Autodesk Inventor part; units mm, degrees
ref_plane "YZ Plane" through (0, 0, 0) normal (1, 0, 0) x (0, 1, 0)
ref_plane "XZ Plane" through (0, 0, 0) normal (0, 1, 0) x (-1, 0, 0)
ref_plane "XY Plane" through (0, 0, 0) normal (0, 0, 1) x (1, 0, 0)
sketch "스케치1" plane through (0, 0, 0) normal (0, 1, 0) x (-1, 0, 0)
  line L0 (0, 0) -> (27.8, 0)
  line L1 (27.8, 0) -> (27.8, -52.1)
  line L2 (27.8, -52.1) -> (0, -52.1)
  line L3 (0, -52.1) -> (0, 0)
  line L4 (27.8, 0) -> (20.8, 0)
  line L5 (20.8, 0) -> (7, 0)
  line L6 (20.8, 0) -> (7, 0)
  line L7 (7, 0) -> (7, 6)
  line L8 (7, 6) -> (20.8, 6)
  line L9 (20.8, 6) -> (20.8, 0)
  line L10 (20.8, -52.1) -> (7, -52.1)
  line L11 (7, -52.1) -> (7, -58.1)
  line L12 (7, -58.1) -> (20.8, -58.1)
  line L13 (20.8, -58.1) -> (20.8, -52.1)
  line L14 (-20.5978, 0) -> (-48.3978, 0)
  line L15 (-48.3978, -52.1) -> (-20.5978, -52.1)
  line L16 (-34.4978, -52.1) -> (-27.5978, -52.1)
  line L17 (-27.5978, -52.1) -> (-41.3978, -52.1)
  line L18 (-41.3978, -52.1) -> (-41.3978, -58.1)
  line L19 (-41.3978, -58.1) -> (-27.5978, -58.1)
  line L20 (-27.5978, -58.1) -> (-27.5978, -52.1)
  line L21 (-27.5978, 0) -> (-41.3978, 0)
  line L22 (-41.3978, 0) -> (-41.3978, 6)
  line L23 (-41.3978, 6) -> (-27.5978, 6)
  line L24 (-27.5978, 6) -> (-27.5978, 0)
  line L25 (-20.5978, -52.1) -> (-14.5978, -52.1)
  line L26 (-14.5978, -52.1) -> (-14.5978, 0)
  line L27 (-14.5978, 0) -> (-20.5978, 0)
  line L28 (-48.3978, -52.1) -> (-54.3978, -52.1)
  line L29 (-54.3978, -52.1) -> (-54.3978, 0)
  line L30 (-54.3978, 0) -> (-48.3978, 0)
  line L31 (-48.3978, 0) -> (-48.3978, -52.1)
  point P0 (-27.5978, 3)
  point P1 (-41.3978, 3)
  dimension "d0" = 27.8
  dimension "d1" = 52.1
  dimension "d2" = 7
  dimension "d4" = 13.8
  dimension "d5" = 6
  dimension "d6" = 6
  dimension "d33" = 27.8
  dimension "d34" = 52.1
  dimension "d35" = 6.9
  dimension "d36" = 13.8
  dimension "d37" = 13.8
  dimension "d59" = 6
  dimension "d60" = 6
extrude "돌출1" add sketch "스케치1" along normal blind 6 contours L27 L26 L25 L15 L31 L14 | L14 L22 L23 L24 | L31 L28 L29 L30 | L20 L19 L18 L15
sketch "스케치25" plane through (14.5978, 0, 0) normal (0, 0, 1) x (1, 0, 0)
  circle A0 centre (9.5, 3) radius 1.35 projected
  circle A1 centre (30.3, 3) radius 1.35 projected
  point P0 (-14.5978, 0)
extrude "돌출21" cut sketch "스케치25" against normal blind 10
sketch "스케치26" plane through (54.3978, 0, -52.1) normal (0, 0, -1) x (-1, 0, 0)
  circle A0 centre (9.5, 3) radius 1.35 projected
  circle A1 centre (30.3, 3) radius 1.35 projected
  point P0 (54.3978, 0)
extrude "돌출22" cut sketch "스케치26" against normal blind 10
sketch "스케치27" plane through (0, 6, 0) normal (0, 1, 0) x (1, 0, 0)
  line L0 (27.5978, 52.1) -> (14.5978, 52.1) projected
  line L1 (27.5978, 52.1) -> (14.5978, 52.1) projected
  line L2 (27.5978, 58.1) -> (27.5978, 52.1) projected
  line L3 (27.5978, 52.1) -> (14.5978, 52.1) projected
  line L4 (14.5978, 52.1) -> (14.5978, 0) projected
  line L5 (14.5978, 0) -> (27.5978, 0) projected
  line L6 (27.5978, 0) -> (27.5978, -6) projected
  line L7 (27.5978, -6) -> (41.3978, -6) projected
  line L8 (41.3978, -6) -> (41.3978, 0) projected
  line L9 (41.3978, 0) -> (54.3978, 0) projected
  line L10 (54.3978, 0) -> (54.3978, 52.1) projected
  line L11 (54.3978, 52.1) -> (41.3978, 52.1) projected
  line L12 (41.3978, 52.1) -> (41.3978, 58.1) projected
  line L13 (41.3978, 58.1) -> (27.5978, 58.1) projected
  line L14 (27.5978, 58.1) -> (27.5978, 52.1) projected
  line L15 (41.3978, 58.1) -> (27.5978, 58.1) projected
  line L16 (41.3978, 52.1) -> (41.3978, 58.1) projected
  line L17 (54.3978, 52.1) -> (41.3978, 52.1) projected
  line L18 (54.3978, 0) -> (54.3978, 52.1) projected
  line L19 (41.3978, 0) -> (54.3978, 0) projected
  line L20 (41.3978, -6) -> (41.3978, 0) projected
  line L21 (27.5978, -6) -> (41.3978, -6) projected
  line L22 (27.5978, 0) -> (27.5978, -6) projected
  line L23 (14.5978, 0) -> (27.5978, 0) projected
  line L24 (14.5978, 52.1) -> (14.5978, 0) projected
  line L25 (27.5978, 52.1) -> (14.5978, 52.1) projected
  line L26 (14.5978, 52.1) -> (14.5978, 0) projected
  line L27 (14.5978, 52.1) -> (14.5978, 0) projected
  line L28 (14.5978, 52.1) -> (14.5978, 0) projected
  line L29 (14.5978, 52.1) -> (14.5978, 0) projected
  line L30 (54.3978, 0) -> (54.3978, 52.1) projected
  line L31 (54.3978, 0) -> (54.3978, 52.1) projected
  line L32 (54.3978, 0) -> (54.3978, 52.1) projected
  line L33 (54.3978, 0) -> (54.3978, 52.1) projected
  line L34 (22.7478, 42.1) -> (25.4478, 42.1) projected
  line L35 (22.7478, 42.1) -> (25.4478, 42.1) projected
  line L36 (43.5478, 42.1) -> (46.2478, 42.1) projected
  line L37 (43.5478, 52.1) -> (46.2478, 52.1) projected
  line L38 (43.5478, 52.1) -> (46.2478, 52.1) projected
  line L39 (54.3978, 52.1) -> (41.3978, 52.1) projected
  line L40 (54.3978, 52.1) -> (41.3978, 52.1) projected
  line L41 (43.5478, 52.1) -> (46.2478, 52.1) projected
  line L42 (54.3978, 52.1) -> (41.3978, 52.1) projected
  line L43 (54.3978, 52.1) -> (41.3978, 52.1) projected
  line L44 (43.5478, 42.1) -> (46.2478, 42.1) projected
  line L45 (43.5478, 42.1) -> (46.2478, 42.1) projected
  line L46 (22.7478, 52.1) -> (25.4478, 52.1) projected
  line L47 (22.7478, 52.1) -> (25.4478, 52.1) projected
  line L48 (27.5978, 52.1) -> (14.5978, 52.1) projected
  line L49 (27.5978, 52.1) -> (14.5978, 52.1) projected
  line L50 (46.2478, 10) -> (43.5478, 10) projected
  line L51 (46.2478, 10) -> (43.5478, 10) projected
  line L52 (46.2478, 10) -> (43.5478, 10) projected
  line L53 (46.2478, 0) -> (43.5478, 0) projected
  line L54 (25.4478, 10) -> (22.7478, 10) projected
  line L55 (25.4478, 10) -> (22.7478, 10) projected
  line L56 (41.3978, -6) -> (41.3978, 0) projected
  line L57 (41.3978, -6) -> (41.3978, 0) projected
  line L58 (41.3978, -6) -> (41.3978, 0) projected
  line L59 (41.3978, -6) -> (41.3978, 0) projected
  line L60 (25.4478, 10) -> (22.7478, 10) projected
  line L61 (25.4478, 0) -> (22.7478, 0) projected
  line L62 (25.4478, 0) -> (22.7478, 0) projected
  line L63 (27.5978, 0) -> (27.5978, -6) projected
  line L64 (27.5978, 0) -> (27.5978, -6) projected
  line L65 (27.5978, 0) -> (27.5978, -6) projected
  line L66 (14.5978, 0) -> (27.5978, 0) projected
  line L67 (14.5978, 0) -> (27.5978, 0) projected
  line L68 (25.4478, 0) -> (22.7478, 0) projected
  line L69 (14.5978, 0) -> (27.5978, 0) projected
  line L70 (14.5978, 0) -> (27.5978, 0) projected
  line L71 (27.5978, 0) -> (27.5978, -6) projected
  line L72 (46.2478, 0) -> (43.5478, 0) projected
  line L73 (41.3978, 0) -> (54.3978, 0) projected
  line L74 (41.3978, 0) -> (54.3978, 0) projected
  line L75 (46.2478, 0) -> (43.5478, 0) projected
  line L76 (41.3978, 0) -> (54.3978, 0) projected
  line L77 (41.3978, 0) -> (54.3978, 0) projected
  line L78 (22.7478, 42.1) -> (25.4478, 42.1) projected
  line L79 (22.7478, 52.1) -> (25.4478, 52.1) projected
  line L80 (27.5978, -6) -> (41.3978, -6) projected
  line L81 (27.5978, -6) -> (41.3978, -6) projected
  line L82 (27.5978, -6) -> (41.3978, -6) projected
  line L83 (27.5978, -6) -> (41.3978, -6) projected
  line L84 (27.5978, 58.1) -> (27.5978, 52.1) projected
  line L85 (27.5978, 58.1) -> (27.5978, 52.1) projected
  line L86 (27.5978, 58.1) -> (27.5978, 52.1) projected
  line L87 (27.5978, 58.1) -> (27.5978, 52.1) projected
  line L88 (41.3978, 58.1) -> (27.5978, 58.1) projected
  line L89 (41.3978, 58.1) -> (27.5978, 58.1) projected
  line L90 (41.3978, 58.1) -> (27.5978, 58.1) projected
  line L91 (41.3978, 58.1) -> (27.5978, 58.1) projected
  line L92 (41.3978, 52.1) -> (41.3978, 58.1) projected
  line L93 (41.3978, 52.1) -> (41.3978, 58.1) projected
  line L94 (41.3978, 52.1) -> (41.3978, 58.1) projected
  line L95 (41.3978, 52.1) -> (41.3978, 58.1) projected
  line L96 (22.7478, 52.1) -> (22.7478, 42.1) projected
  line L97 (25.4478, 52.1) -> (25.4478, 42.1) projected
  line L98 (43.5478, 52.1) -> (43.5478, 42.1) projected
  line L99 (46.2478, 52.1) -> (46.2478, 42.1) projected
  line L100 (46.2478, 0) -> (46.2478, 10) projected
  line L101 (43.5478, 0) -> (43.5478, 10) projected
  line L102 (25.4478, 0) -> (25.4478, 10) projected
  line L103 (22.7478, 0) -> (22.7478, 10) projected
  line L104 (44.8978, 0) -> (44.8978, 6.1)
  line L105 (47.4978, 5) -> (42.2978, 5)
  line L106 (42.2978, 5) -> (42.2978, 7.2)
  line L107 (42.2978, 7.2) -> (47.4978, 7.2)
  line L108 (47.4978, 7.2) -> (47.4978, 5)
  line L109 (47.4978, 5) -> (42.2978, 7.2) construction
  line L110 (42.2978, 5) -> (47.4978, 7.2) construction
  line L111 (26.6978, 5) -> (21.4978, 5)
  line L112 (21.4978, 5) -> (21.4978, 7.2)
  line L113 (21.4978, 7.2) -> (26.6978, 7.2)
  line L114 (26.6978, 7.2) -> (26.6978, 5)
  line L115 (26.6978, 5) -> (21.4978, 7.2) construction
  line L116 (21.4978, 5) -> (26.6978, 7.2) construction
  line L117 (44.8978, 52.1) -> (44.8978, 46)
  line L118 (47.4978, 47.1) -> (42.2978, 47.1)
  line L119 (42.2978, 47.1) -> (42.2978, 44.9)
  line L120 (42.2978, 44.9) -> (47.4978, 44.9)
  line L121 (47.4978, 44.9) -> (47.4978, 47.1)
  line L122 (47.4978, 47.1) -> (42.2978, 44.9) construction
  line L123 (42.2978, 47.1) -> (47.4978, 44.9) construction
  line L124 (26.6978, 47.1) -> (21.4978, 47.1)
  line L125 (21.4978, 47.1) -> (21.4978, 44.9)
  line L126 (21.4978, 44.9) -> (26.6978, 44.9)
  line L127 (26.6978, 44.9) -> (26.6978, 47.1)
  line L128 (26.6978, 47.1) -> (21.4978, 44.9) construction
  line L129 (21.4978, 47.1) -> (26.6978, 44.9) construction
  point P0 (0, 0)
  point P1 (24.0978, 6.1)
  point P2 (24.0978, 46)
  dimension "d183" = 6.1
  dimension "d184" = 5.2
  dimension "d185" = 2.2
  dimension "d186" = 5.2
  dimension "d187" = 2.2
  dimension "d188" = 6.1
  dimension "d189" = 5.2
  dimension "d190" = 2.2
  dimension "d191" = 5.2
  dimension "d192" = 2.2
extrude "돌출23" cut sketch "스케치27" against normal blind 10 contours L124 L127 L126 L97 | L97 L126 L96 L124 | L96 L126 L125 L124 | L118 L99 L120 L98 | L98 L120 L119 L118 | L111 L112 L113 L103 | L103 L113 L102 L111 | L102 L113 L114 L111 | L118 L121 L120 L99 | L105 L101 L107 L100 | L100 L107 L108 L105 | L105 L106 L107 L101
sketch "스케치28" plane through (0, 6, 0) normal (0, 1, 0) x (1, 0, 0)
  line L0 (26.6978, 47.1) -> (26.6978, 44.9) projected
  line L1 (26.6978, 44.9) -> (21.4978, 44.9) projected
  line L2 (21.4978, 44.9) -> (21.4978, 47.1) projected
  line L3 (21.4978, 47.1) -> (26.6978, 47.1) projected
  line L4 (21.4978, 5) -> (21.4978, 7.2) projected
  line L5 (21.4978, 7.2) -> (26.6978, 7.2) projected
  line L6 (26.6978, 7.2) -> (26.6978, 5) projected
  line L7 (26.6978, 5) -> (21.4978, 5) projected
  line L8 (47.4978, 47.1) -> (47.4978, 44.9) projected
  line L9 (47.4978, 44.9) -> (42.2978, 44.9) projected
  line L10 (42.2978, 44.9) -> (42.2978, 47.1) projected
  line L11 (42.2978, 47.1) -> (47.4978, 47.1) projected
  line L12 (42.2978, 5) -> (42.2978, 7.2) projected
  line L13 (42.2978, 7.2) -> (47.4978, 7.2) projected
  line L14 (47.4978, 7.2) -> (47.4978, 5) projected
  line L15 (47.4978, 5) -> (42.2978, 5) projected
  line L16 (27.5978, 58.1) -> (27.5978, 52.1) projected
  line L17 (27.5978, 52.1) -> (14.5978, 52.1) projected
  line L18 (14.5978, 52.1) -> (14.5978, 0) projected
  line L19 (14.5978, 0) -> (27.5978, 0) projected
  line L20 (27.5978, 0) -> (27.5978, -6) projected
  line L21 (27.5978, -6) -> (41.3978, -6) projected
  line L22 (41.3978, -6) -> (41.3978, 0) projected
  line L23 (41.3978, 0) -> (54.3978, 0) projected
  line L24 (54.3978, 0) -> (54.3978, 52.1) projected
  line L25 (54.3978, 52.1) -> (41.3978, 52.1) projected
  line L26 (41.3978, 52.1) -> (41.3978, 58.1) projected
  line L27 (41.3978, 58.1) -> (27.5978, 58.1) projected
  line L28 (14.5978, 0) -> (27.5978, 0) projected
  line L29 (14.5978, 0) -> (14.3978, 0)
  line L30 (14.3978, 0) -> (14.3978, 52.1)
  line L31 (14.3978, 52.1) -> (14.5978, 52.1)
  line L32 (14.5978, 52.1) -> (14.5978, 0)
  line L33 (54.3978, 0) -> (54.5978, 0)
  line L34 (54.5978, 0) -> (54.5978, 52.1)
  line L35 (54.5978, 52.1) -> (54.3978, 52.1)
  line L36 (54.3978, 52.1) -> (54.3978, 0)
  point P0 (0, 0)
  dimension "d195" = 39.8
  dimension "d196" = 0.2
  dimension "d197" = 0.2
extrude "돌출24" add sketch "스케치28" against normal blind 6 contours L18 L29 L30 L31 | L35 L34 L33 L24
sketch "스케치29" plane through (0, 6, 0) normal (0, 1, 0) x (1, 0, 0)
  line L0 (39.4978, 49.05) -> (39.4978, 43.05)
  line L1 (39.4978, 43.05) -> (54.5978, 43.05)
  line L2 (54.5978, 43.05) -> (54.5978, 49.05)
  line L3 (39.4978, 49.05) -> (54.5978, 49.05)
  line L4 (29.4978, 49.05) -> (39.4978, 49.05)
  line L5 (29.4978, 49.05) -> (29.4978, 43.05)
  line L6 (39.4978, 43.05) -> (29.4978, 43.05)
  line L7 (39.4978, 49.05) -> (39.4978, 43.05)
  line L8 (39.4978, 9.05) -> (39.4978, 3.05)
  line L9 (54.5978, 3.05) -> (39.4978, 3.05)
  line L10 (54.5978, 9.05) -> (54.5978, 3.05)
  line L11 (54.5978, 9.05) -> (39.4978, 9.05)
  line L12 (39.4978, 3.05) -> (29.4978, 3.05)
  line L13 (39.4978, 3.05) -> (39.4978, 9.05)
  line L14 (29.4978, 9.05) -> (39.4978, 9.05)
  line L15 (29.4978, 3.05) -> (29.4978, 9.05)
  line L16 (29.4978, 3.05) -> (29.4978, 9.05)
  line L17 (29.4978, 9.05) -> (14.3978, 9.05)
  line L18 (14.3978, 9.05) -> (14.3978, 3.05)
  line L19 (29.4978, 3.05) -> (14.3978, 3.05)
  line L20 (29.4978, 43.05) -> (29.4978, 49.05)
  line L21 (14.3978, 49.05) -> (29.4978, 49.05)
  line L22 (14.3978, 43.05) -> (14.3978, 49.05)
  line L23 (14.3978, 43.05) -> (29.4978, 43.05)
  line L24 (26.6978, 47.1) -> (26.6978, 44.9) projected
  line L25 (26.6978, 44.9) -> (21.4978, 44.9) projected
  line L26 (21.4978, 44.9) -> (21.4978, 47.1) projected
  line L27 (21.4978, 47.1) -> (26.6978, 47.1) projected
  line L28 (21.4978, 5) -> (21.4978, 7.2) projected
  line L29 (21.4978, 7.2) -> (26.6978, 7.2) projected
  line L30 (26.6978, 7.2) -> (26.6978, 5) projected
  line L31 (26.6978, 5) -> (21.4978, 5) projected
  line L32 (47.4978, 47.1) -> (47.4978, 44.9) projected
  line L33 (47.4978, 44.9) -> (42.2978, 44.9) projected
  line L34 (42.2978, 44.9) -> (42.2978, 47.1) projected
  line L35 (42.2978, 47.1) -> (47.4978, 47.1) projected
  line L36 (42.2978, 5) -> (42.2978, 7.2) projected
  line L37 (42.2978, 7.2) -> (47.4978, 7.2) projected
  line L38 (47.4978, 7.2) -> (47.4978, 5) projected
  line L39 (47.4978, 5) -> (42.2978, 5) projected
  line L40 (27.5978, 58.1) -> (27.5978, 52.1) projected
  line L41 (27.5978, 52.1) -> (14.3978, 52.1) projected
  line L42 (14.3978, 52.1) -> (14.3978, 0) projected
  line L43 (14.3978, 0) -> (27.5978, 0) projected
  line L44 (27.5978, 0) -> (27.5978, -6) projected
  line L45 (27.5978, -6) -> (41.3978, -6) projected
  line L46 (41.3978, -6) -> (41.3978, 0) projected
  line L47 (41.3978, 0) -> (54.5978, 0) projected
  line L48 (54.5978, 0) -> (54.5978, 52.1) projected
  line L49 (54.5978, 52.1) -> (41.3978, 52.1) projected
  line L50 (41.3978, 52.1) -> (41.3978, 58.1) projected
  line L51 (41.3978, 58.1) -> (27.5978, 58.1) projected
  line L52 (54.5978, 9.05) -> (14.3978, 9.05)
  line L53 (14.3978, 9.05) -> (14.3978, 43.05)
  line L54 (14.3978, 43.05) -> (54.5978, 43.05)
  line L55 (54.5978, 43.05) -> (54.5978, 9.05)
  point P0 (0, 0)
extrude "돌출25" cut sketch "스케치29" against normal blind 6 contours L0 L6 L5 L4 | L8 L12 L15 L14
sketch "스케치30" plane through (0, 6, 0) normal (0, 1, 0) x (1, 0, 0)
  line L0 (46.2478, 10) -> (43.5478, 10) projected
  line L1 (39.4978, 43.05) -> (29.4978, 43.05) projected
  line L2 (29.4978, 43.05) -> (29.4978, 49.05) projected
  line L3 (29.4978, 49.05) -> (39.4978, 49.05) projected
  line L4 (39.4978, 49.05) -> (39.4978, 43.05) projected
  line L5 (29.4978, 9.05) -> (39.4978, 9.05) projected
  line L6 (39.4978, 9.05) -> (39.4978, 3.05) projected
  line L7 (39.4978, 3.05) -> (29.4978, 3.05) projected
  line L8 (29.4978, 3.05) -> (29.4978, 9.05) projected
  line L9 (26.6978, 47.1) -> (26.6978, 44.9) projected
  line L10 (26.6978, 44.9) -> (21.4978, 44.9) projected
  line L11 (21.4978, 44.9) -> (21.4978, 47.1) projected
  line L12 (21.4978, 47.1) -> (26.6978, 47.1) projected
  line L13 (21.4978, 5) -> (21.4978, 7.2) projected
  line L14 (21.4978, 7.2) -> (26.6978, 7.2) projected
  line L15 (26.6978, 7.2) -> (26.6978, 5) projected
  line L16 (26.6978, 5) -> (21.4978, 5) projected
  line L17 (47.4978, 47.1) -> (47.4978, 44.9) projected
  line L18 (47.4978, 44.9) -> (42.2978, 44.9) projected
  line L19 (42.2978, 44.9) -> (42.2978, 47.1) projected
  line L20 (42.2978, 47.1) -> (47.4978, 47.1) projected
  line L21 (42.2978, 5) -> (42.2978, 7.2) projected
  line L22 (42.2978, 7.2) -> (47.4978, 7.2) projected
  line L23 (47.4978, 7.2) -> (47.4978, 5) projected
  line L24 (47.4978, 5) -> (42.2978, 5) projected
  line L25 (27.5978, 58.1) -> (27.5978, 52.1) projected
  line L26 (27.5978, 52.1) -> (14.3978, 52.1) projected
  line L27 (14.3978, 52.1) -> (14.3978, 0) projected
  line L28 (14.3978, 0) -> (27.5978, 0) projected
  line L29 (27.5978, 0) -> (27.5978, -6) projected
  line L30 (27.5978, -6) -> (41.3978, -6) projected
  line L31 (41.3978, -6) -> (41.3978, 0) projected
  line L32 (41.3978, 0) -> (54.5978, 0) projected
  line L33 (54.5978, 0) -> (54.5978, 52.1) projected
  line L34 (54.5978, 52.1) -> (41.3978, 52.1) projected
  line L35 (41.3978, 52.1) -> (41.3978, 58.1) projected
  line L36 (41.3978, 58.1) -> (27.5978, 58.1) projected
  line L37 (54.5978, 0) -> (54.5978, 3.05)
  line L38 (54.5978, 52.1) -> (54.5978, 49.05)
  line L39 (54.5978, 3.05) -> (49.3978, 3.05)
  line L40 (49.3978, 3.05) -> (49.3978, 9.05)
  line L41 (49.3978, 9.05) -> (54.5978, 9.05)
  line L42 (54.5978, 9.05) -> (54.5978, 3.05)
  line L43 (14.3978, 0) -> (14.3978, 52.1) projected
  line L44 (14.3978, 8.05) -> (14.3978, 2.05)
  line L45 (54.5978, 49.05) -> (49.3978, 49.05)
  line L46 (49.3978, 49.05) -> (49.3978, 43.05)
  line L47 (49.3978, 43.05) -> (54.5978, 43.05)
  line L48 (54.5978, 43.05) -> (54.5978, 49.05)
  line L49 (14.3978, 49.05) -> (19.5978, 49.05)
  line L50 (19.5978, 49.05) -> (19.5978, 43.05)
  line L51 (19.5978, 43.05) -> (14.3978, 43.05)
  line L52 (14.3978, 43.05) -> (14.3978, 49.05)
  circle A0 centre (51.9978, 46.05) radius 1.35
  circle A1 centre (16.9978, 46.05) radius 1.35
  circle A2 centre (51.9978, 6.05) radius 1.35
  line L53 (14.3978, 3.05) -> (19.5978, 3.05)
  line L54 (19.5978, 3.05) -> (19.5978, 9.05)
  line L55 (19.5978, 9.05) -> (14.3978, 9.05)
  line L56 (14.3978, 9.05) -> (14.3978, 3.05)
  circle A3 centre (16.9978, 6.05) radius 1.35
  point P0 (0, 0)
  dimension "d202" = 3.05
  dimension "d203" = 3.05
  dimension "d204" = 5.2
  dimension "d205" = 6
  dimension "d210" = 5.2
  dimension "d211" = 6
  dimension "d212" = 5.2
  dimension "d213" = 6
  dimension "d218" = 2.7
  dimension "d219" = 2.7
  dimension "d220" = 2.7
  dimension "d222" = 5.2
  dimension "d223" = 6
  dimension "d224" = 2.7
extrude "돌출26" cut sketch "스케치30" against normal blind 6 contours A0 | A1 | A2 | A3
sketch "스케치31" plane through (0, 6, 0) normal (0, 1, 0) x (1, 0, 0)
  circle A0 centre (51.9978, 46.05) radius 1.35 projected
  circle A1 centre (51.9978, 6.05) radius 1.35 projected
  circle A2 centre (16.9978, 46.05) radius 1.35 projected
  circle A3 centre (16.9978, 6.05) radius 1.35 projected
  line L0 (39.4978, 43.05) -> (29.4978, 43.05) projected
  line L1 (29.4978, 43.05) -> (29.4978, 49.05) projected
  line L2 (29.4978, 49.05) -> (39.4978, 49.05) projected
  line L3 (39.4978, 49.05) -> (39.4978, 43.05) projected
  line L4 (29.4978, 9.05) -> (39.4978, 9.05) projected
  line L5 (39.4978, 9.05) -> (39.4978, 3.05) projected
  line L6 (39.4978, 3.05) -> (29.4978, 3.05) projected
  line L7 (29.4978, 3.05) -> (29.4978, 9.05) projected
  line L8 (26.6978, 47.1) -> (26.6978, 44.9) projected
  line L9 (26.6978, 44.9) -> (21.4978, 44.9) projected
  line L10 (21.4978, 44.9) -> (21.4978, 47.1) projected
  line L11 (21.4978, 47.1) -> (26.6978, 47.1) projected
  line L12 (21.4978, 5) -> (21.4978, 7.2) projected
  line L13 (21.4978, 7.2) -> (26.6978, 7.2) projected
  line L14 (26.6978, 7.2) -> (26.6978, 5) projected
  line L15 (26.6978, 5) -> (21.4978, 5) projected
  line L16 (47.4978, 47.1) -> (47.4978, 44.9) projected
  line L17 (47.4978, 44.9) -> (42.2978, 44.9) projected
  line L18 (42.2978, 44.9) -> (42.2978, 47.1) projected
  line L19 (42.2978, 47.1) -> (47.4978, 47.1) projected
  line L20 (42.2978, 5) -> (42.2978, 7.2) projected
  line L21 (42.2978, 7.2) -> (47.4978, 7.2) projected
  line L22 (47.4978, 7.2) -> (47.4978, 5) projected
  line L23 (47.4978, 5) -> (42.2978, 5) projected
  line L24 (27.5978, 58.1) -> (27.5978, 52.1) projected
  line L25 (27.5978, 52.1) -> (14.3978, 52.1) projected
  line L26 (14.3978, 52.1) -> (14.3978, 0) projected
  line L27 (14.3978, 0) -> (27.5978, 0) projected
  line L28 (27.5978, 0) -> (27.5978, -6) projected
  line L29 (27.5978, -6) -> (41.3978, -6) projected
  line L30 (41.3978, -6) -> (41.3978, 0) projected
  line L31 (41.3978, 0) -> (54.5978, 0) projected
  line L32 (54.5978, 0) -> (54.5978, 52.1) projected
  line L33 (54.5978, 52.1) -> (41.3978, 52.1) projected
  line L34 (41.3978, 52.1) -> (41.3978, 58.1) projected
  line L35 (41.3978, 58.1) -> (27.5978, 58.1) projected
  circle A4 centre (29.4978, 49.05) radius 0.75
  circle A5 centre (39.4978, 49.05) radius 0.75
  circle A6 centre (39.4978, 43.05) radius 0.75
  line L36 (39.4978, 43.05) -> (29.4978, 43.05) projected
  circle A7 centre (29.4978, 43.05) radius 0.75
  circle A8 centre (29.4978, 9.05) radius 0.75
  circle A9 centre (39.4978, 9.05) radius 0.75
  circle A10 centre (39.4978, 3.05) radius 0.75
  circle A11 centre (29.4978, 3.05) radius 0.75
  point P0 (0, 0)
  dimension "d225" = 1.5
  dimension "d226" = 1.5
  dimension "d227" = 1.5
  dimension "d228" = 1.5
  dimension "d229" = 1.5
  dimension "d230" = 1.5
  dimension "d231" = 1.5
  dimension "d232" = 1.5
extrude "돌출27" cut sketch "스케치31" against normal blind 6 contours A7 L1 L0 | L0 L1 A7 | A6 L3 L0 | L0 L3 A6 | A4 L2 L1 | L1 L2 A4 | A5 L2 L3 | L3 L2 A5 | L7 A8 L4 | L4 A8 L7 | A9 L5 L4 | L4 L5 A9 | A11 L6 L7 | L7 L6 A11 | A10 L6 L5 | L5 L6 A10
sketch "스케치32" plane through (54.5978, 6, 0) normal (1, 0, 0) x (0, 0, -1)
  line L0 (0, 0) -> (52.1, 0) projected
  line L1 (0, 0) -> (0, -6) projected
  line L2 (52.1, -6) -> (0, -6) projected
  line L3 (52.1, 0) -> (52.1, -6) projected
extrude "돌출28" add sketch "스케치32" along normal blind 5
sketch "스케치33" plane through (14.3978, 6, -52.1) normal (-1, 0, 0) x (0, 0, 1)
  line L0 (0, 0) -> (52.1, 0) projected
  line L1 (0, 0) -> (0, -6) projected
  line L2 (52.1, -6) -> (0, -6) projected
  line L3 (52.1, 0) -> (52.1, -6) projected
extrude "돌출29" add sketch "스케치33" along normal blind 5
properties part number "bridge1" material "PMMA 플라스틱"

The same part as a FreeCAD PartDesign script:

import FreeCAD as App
import Part
import Sketcher
from FreeCAD import Vector

doc = App.newDocument("Part")
body = doc.addObject("PartDesign::Body", "Body")

# Sketch on XZ plane
sketch1 = body.newObject("Sketcher::SketchObject", "Sketch")
sketch1.AttachmentSupport = (doc.getObject("XZ_Plane"), [""])
sketch1.MapMode = "FlatFace"
sketch1.addGeometry([
    Part.LineSegment(Vector(15, 0, 0), Vector(28, 0, 0)),  # 0
    Part.LineSegment(Vector(28, 0, 0), Vector(28, 6, 0)),  # 1
    Part.LineSegment(Vector(28, 6, 0), Vector(41, 6, 0)),  # 2
    Part.LineSegment(Vector(41, 6, 0), Vector(41, 0, 0)),  # 3
    Part.LineSegment(Vector(41, 0, 0), Vector(54, 0, 0)),  # 4
    Part.LineSegment(Vector(54, 0, 0), Vector(54, -52, 0)),  # 5
    Part.LineSegment(Vector(54, -52, 0), Vector(41, -52, 0)),  # 6
    Part.LineSegment(Vector(41, -52, 0), Vector(41, -58, 0)),  # 7
    Part.LineSegment(Vector(41, -58, 0), Vector(28, -58, 0)),  # 8
    Part.LineSegment(Vector(28, -58, 0), Vector(28, -52, 0)),  # 9
    Part.LineSegment(Vector(28, -52, 0), Vector(15, -52, 0)),  # 10
    Part.LineSegment(Vector(15, -52, 0), Vector(15, 0, 0)),  # 11
], False)
sketch1.addConstraint([
    Sketcher.Constraint("Coincident", 0, 2, 1, 1),
    Sketcher.Constraint("Coincident", 1, 2, 2, 1),
    Sketcher.Constraint("Coincident", 2, 2, 3, 1),
    Sketcher.Constraint("Coincident", 3, 2, 4, 1),
    Sketcher.Constraint("Coincident", 4, 2, 5, 1),
    Sketcher.Constraint("Coincident", 5, 2, 6, 1),
    Sketcher.Constraint("Coincident", 6, 2, 7, 1),
    Sketcher.Constraint("Coincident", 7, 2, 8, 1),
    Sketcher.Constraint("Coincident", 8, 2, 9, 1),
    Sketcher.Constraint("Coincident", 9, 2, 10, 1),
    Sketcher.Constraint("Coincident", 10, 2, 11, 1),
    Sketcher.Constraint("Coincident", 11, 2, 0, 1),
    Sketcher.Constraint("Horizontal", 0),
    Sketcher.Constraint("Vertical", 1),
    Sketcher.Constraint("Horizontal", 2),
    Sketcher.Constraint("Vertical", 3),
    Sketcher.Constraint("Horizontal", 4),
    Sketcher.Constraint("Vertical", 5),
    Sketcher.Constraint("Horizontal", 6),
    Sketcher.Constraint("Vertical", 7),
    Sketcher.Constraint("Horizontal", 8),
    Sketcher.Constraint("Vertical", 9),
    Sketcher.Constraint("Horizontal", 10),
    Sketcher.Constraint("Vertical", 11),
    Sketcher.Constraint("PointOnObject", 0, 2, -1),
    Sketcher.Constraint("PointOnObject", 3, 2, -1),
    Sketcher.Constraint("Horizontal", 6, 2, 9, 2),
    Sketcher.Constraint("Vertical", 3, 2, 6, 2),
    Sketcher.Constraint("Vertical", 1, 2, 8, 2),
    Sketcher.Constraint("Equal", 0, 4),
    Sketcher.Constraint("Equal", 3, 7),
    Sketcher.Constraint("DistanceY", 1, 1, 1, 2, 6.0),
    Sketcher.Constraint("DistanceX", 2, 1, 2, 2, 13.8),
    Sketcher.Constraint("DistanceY", 5, 2, 5, 1, 52.1),
    Sketcher.Constraint("DistanceX", 0, 1, 0, 2, 13.0),
    Sketcher.Constraint("DistanceX", -1, 1, 0, 2, 27.5978),
])
pad1 = body.newObject("PartDesign::Pad", "Pad")
pad1.Profile = sketch1
pad1.Length = 6
pad1.Reversed = True

# Sketch on XY plane
sketch2 = body.newObject("Sketcher::SketchObject", "Sketch001")
sketch2.AttachmentSupport = (doc.getObject("XY_Plane"), [""])
sketch2.MapMode = "FlatFace"
sketch2.addGeometry([
    Part.Circle(Vector(24.1, 3, 0), Vector(0, 0, 1), 1.4),
    Part.Circle(Vector(44.9, 3, 0), Vector(0, 0, 1), 1.4),
], False)
sketch2.addConstraint([
    Sketcher.Constraint("Equal", 0, 1),
    Sketcher.Constraint("Horizontal", 0, 3, 1, 3),
    Sketcher.Constraint("Diameter", 0, 2.7),
    Sketcher.Constraint("DistanceY", -1, 1, 0, 3, 3.0),
    Sketcher.Constraint("DistanceX", 0, 3, 1, 3, 20.8),
    Sketcher.Constraint("DistanceX", -1, 1, 0, 3, 24.0978),
])
pocket1 = body.newObject("PartDesign::Pocket", "Pocket")
pocket1.Profile = sketch2
pocket1.Length = 10

# Sketch on XY plane
sketch3 = body.newObject("Sketcher::SketchObject", "Sketch002")
sketch3.AttachmentSupport = (doc.getObject("XY_Plane"), [""])
sketch3.MapMode = "FlatFace"
sketch3.AttachmentOffset = App.Placement(Vector(0, 0, -52.1), App.Rotation())
sketch3.addGeometry([
    Part.Circle(Vector(44.9, 3, 0), Vector(0, 0, 1), 1.4),
    Part.Circle(Vector(24.1, 3, 0), Vector(0, 0, 1), 1.4),
], False)
sketch3.addConstraint([
    Sketcher.Constraint("Equal", 0, 1),
    Sketcher.Constraint("Horizontal", 0, 3, 1, 3),
    Sketcher.Constraint("Diameter", 0, 2.7),
    Sketcher.Constraint("DistanceY", -1, 1, 0, 3, 3.0),
    Sketcher.Constraint("DistanceX", 1, 3, 0, 3, 20.8),
    Sketcher.Constraint("DistanceX", -1, 1, 0, 3, 44.8978),
])
pocket2 = body.newObject("PartDesign::Pocket", "Pocket001")
pocket2.Profile = sketch3
pocket2.Length = 10
pocket2.Reversed = True

# Sketch on XZ plane
sketch4 = body.newObject("Sketcher::SketchObject", "Sketch003")
sketch4.AttachmentSupport = (doc.getObject("XZ_Plane"), [""])
sketch4.MapMode = "FlatFace"
sketch4.AttachmentOffset = App.Placement(Vector(0, 0, -6), App.Rotation())
sketch4.addGeometry([
    Part.LineSegment(Vector(26.7, -47.1, 0), Vector(21.5, -47.1, 0)),  # 0
    Part.LineSegment(Vector(21.5, -47.1, 0), Vector(21.5, -44.9, 0)),  # 1
    Part.LineSegment(Vector(21.5, -44.9, 0), Vector(26.7, -44.9, 0)),  # 2
    Part.LineSegment(Vector(26.7, -44.9, 0), Vector(26.7, -47.1, 0)),  # 3
    Part.LineSegment(Vector(42.3, -47.1, 0), Vector(42.3, -44.9, 0)),  # 4
    Part.LineSegment(Vector(42.3, -44.9, 0), Vector(47.5, -44.9, 0)),  # 5
    Part.LineSegment(Vector(47.5, -44.9, 0), Vector(47.5, -47.1, 0)),  # 6
    Part.LineSegment(Vector(47.5, -47.1, 0), Vector(42.3, -47.1, 0)),  # 7
    Part.LineSegment(Vector(21.5, -5, 0), Vector(26.7, -5, 0)),  # 8
    Part.LineSegment(Vector(26.7, -5, 0), Vector(26.7, -7.2, 0)),  # 9
    Part.LineSegment(Vector(26.7, -7.2, 0), Vector(21.5, -7.2, 0)),  # 10
    Part.LineSegment(Vector(21.5, -7.2, 0), Vector(21.5, -5, 0)),  # 11
    Part.LineSegment(Vector(47.5, -5, 0), Vector(47.5, -7.2, 0)),  # 12
    Part.LineSegment(Vector(47.5, -7.2, 0), Vector(42.3, -7.2, 0)),  # 13
    Part.LineSegment(Vector(42.3, -7.2, 0), Vector(42.3, -5, 0)),  # 14
    Part.LineSegment(Vector(42.3, -5, 0), Vector(47.5, -5, 0)),  # 15
], False)
sketch4.addConstraint([
    Sketcher.Constraint("Coincident", 0, 2, 1, 1),
    Sketcher.Constraint("Coincident", 1, 2, 2, 1),
    Sketcher.Constraint("Coincident", 2, 2, 3, 1),
    Sketcher.Constraint("Coincident", 3, 2, 0, 1),
    Sketcher.Constraint("Coincident", 4, 2, 5, 1),
    Sketcher.Constraint("Coincident", 5, 2, 6, 1),
    Sketcher.Constraint("Coincident", 6, 2, 7, 1),
    Sketcher.Constraint("Coincident", 7, 2, 4, 1),
    Sketcher.Constraint("Coincident", 8, 2, 9, 1),
    Sketcher.Constraint("Coincident", 9, 2, 10, 1),
    Sketcher.Constraint("Coincident", 10, 2, 11, 1),
    Sketcher.Constraint("Coincident", 11, 2, 8, 1),
    Sketcher.Constraint("Coincident", 12, 2, 13, 1),
    Sketcher.Constraint("Coincident", 13, 2, 14, 1),
    Sketcher.Constraint("Coincident", 14, 2, 15, 1),
    Sketcher.Constraint("Coincident", 15, 2, 12, 1),
    Sketcher.Constraint("Horizontal", 0),
    Sketcher.Constraint("Vertical", 1),
    Sketcher.Constraint("Horizontal", 2),
    Sketcher.Constraint("Vertical", 3),
    Sketcher.Constraint("Vertical", 4),
    Sketcher.Constraint("Horizontal", 5),
    Sketcher.Constraint("Vertical", 6),
    Sketcher.Constraint("Horizontal", 7),
    Sketcher.Constraint("Horizontal", 8),
    Sketcher.Constraint("Vertical", 9),
    Sketcher.Constraint("Horizontal", 10),
    Sketcher.Constraint("Vertical", 11),
    Sketcher.Constraint("Vertical", 12),
    Sketcher.Constraint("Horizontal", 13),
    Sketcher.Constraint("Vertical", 14),
    Sketcher.Constraint("Horizontal", 15),
    Sketcher.Constraint("Horizontal", 2, 2, 4, 2),
    Sketcher.Constraint("Horizontal", 3, 2, 6, 2),
    Sketcher.Constraint("Horizontal", 10, 2, 12, 2),
    Sketcher.Constraint("Horizontal", 11, 2, 14, 2),
    Sketcher.Constraint("Vertical", 3, 2, 8, 2),
    Sketcher.Constraint("Vertical", 1, 2, 10, 2),
    Sketcher.Constraint("Vertical", 6, 2, 12, 2),
    Sketcher.Constraint("Vertical", 7, 2, 13, 2),
    Sketcher.Constraint("Equal", 2, 5),
    Sketcher.Constraint("Equal", 6, 9),
    Sketcher.Constraint("DistanceX", 0, 2, 0, 1, 5.2),
    Sketcher.Constraint("DistanceY", 1, 1, 1, 2, 2.2),
    Sketcher.Constraint("DistanceY", 8, 2, -1, 1, 5.0),
    Sketcher.Constraint("DistanceX", 1, 2, 5, 2, 26.0),
    Sketcher.Constraint("DistanceY", 0, 2, -1, 1, 47.1),
    Sketcher.Constraint("DistanceX", -1, 1, 0, 2, 21.4978),
])
pocket3 = body.newObject("PartDesign::Pocket", "Pocket002")
pocket3.Profile = sketch4
pocket3.Length = 10
pocket3.Reversed = True

# Sketch on XZ plane
sketch5 = body.newObject("Sketcher::SketchObject", "Sketch004")
sketch5.AttachmentSupport = (doc.getObject("XZ_Plane"), [""])
sketch5.MapMode = "FlatFace"
sketch5.AttachmentOffset = App.Placement(Vector(0, 0, -6), App.Rotation())
sketch5.addGeometry([
    Part.LineSegment(Vector(14.6, 0, 0), Vector(14.6, -52.1, 0)),  # 0
    Part.LineSegment(Vector(14.6, -52.1, 0), Vector(14.4, -52.1, 0)),  # 1
    Part.LineSegment(Vector(14.4, -52.1, 0), Vector(14.4, 0, 0)),  # 2
    Part.LineSegment(Vector(14.4, 0, 0), Vector(14.6, 0, 0)),  # 3
    Part.LineSegment(Vector(54.6, -52.1, 0), Vector(54.4, -52.1, 0)),  # 4
    Part.LineSegment(Vector(54.4, -52.1, 0), Vector(54.4, 0, 0)),  # 5
    Part.LineSegment(Vector(54.4, 0, 0), Vector(54.6, 0, 0)),  # 6
    Part.LineSegment(Vector(54.6, 0, 0), Vector(54.6, -52.1, 0)),  # 7
], False)
sketch5.addConstraint([
    Sketcher.Constraint("Coincident", 0, 2, 1, 1),
    Sketcher.Constraint("Coincident", 1, 2, 2, 1),
    Sketcher.Constraint("Coincident", 2, 2, 3, 1),
    Sketcher.Constraint("Coincident", 3, 2, 0, 1),
    Sketcher.Constraint("Coincident", 4, 2, 5, 1),
    Sketcher.Constraint("Coincident", 5, 2, 6, 1),
    Sketcher.Constraint("Coincident", 6, 2, 7, 1),
    Sketcher.Constraint("Coincident", 7, 2, 4, 1),
    Sketcher.Constraint("Vertical", 0),
    Sketcher.Constraint("Horizontal", 1),
    Sketcher.Constraint("Vertical", 2),
    Sketcher.Constraint("Horizontal", 3),
    Sketcher.Constraint("Horizontal", 4),
    Sketcher.Constraint("Vertical", 5),
    Sketcher.Constraint("Horizontal", 6),
    Sketcher.Constraint("Vertical", 7),
    Sketcher.Constraint("PointOnObject", 2, 2, -1),
    Sketcher.Constraint("PointOnObject", 5, 2, -1),
    Sketcher.Constraint("Horizontal", 1, 2, 4, 2),
    Sketcher.Constraint("Equal", 3, 4),
    Sketcher.Constraint("DistanceX", 1, 2, 1, 1, 0.2),
    Sketcher.Constraint("DistanceX", 0, 2, 4, 2, 39.8),
    Sketcher.Constraint("DistanceY", 0, 2, 0, 1, 52.1),
    Sketcher.Constraint("DistanceX", -1, 1, 0, 2, 14.5978),
])
pad2 = body.newObject("PartDesign::Pad", "Pad001")
pad2.Profile = sketch5
pad2.Length = 6

# Sketch on XZ plane
sketch6 = body.newObject("Sketcher::SketchObject", "Sketch005")
sketch6.AttachmentSupport = (doc.getObject("XZ_Plane"), [""])
sketch6.MapMode = "FlatFace"
sketch6.AttachmentOffset = App.Placement(Vector(0, 0, -6), App.Rotation())
sketch6.addGeometry([
    Part.LineSegment(Vector(39, -43, 0), Vector(39, -49, 0)),  # 0
    Part.LineSegment(Vector(39, -49, 0), Vector(29, -49, 0)),  # 1
    Part.LineSegment(Vector(29, -49, 0), Vector(29, -43, 0)),  # 2
    Part.LineSegment(Vector(29, -43, 0), Vector(39, -43, 0)),  # 3
    Part.LineSegment(Vector(39, -3, 0), Vector(39, -9, 0)),  # 4
    Part.LineSegment(Vector(39, -9, 0), Vector(29, -9, 0)),  # 5
    Part.LineSegment(Vector(29, -9, 0), Vector(29, -3, 0)),  # 6
    Part.LineSegment(Vector(29, -3, 0), Vector(39, -3, 0)),  # 7
], False)
sketch6.addConstraint([
    Sketcher.Constraint("Coincident", 0, 2, 1, 1),
    Sketcher.Constraint("Coincident", 1, 2, 2, 1),
    Sketcher.Constraint("Coincident", 2, 2, 3, 1),
    Sketcher.Constraint("Coincident", 3, 2, 0, 1),
    Sketcher.Constraint("Coincident", 4, 2, 5, 1),
    Sketcher.Constraint("Coincident", 5, 2, 6, 1),
    Sketcher.Constraint("Coincident", 6, 2, 7, 1),
    Sketcher.Constraint("Coincident", 7, 2, 4, 1),
    Sketcher.Constraint("Vertical", 0),
    Sketcher.Constraint("Horizontal", 1),
    Sketcher.Constraint("Vertical", 2),
    Sketcher.Constraint("Horizontal", 3),
    Sketcher.Constraint("Vertical", 4),
    Sketcher.Constraint("Horizontal", 5),
    Sketcher.Constraint("Vertical", 6),
    Sketcher.Constraint("Horizontal", 7),
    Sketcher.Constraint("Vertical", 3, 2, 4, 2),
    Sketcher.Constraint("Vertical", 2, 2, 5, 2),
    Sketcher.Constraint("Equal", 2, 4),
    Sketcher.Constraint("DistanceX", 1, 2, 1, 1, 10.0),
    Sketcher.Constraint("DistanceY", 0, 2, 0, 1, 6.0),
    Sketcher.Constraint("DistanceY", 3, 2, 4, 2, 34.0),
    Sketcher.Constraint("DistanceY", 0, 2, -1, 1, 49.05),
    Sketcher.Constraint("DistanceX", -1, 1, 0, 2, 39.4978),
])
pocket4 = body.newObject("PartDesign::Pocket", "Pocket003")
pocket4.Profile = sketch6
pocket4.Length = 6
pocket4.Reversed = True

# Sketch on XZ plane
sketch7 = body.newObject("Sketcher::SketchObject", "Sketch006")
sketch7.AttachmentSupport = (doc.getObject("XZ_Plane"), [""])
sketch7.MapMode = "FlatFace"
sketch7.AttachmentOffset = App.Placement(Vector(0, 0, -6), App.Rotation())
sketch7.addGeometry([
    Part.Circle(Vector(52, -46, 0), Vector(0, 0, 1), 1.4),
    Part.Circle(Vector(17, -46, 0), Vector(0, 0, 1), 1.4),
    Part.Circle(Vector(52, -6, 0), Vector(0, 0, 1), 1.4),
    Part.Circle(Vector(17, -6, 0), Vector(0, 0, 1), 1.4),
], False)
sketch7.addConstraint([
    Sketcher.Constraint("Equal", 0, 1),
    Sketcher.Constraint("Equal", 1, 2),
    Sketcher.Constraint("Equal", 2, 3),
    Sketcher.Constraint("Horizontal", 0, 3, 1, 3),
    Sketcher.Constraint("Horizontal", 2, 3, 3, 3),
    Sketcher.Constraint("Vertical", 0, 3, 2, 3),
    Sketcher.Constraint("Vertical", 1, 3, 3, 3),
    Sketcher.Constraint("Diameter", 0, 2.7),
    Sketcher.Constraint("DistanceX", 1, 3, 0, 3, 35.0),
    Sketcher.Constraint("DistanceY", 0, 3, 2, 3, 40.0),
    Sketcher.Constraint("DistanceY", 0, 3, -1, 1, 46.05),
    Sketcher.Constraint("DistanceX", -1, 1, 0, 3, 51.9978),
])
pocket5 = body.newObject("PartDesign::Pocket", "Pocket004")
pocket5.Profile = sketch7
pocket5.Length = 6
pocket5.Reversed = True

# Sketch on XZ plane
sketch8 = body.newObject("Sketcher::SketchObject", "Sketch007")
sketch8.AttachmentSupport = (doc.getObject("XZ_Plane"), [""])
sketch8.MapMode = "FlatFace"
sketch8.AttachmentOffset = App.Placement(Vector(0, 0, -6), App.Rotation())
sketch8.addGeometry([
    Part.Circle(Vector(29.5, -43, 0), Vector(0, 0, 1), 0.8),  # 0
    Part.Circle(Vector(39.5, -43, 0), Vector(0, 0, 1), 0.8),  # 1
    Part.Circle(Vector(29.5, -49, 0), Vector(0, 0, 1), 0.8),  # 2
    Part.Circle(Vector(39.5, -49, 0), Vector(0, 0, 1), 0.8),  # 3
    Part.Circle(Vector(29.5, -9.1, 0), Vector(0, 0, 1), 0.8),  # 4
    Part.Circle(Vector(39.5, -9.1, 0), Vector(0, 0, 1), 0.8),  # 5
    Part.Circle(Vector(29.5, -3, 0), Vector(0, 0, 1), 0.8),  # 6
    Part.Circle(Vector(39.5, -3, 0), Vector(0, 0, 1), 0.8),  # 7
], False)
sketch8.addConstraint([
    Sketcher.Constraint("Equal", 0, 1),
    Sketcher.Constraint("Equal", 1, 2),
    Sketcher.Constraint("Equal", 2, 3),
    Sketcher.Constraint("Equal", 3, 4),
    Sketcher.Constraint("Equal", 4, 5),
    Sketcher.Constraint("Equal", 5, 6),
    Sketcher.Constraint("Equal", 6, 7),
    Sketcher.Constraint("Horizontal", 0, 3, 1, 3),
    Sketcher.Constraint("Horizontal", 2, 3, 3, 3),
    Sketcher.Constraint("Horizontal", 4, 3, 5, 3),
    Sketcher.Constraint("Horizontal", 6, 3, 7, 3),
    Sketcher.Constraint("Vertical", 0, 3, 2, 3),
    Sketcher.Constraint("Vertical", 1, 3, 3, 3),
    Sketcher.Constraint("Vertical", 2, 3, 4, 3),
    Sketcher.Constraint("Vertical", 3, 3, 5, 3),
    Sketcher.Constraint("Vertical", 4, 3, 6, 3),
    Sketcher.Constraint("Vertical", 5, 3, 7, 3),
    Sketcher.Constraint("Diameter", 0, 1.5),
    Sketcher.Constraint("DistanceX", 0, 3, 1, 3, 10.0),
    Sketcher.Constraint("DistanceY", 2, 3, 0, 3, 6.0),
    Sketcher.Constraint("DistanceY", 0, 3, 4, 3, 34.0),
    Sketcher.Constraint("DistanceY", 4, 3, 6, 3, 6.0),
    Sketcher.Constraint("DistanceY", 0, 3, -1, 1, 43.05),
    Sketcher.Constraint("DistanceX", -1, 1, 0, 3, 29.4978),
])
pocket6 = body.newObject("PartDesign::Pocket", "Pocket005")
pocket6.Profile = sketch8
pocket6.Length = 6
pocket6.Reversed = True

# Sketch on YZ plane
sketch9 = body.newObject("Sketcher::SketchObject", "Sketch008")
sketch9.AttachmentSupport = (doc.getObject("YZ_Plane"), [""])
sketch9.MapMode = "FlatFace"
sketch9.AttachmentOffset = App.Placement(Vector(0, 0, 54.5978), App.Rotation())
sketch9.addGeometry([
    Part.LineSegment(Vector(6, -52, 0), Vector(6, 0, 0)),
    Part.LineSegment(Vector(6, 0, 0), Vector(0, 0, 0)),
    Part.LineSegment(Vector(0, 0, 0), Vector(0, -52, 0)),
    Part.LineSegment(Vector(0, -52, 0), Vector(6, -52, 0)),
], False)
sketch9.addConstraint([
    Sketcher.Constraint("Coincident", 0, 2, 1, 1),
    Sketcher.Constraint("Coincident", 1, 2, 2, 1),
    Sketcher.Constraint("Coincident", 2, 2, 3, 1),
    Sketcher.Constraint("Coincident", 3, 2, 0, 1),
    Sketcher.Constraint("Vertical", 0),
    Sketcher.Constraint("Horizontal", 1),
    Sketcher.Constraint("Vertical", 2),
    Sketcher.Constraint("Horizontal", 3),
    Sketcher.Constraint("Coincident", 1, 2, -1, 1),
    Sketcher.Constraint("DistanceX", 1, 2, 1, 1, 6.0),
    Sketcher.Constraint("DistanceY", 0, 1, 0, 2, 52.1),
])
pad3 = body.newObject("PartDesign::Pad", "Pad002")
pad3.Profile = sketch9
pad3.Length = 5

# Sketch on YZ plane
sketch10 = body.newObject("Sketcher::SketchObject", "Sketch009")
sketch10.AttachmentSupport = (doc.getObject("YZ_Plane"), [""])
sketch10.MapMode = "FlatFace"
sketch10.AttachmentOffset = App.Placement(Vector(0, 0, 14.3978), App.Rotation())
sketch10.addGeometry([
    Part.LineSegment(Vector(6, 0, 0), Vector(6, -52, 0)),
    Part.LineSegment(Vector(6, -52, 0), Vector(0, -52, 0)),
    Part.LineSegment(Vector(0, -52, 0), Vector(0, 0, 0)),
    Part.LineSegment(Vector(0, 0, 0), Vector(6, 0, 0)),
], False)
sketch10.addConstraint([
    Sketcher.Constraint("Coincident", 0, 2, 1, 1),
    Sketcher.Constraint("Coincident", 1, 2, 2, 1),
    Sketcher.Constraint("Coincident", 2, 2, 3, 1),
    Sketcher.Constraint("Coincident", 3, 2, 0, 1),
    Sketcher.Constraint("Vertical", 0),
    Sketcher.Constraint("Horizontal", 1),
    Sketcher.Constraint("Vertical", 2),
    Sketcher.Constraint("Horizontal", 3),
    Sketcher.Constraint("Coincident", 2, 2, -1, 1),
    Sketcher.Constraint("DistanceX", 1, 2, 1, 1, 6.0),
    Sketcher.Constraint("DistanceY", 0, 2, 0, 1, 52.1),
])
pad4 = body.newObject("PartDesign::Pad", "Pad003")
pad4.Profile = sketch10
pad4.Length = 5
pad4.Reversed = True

doc.recompute()
